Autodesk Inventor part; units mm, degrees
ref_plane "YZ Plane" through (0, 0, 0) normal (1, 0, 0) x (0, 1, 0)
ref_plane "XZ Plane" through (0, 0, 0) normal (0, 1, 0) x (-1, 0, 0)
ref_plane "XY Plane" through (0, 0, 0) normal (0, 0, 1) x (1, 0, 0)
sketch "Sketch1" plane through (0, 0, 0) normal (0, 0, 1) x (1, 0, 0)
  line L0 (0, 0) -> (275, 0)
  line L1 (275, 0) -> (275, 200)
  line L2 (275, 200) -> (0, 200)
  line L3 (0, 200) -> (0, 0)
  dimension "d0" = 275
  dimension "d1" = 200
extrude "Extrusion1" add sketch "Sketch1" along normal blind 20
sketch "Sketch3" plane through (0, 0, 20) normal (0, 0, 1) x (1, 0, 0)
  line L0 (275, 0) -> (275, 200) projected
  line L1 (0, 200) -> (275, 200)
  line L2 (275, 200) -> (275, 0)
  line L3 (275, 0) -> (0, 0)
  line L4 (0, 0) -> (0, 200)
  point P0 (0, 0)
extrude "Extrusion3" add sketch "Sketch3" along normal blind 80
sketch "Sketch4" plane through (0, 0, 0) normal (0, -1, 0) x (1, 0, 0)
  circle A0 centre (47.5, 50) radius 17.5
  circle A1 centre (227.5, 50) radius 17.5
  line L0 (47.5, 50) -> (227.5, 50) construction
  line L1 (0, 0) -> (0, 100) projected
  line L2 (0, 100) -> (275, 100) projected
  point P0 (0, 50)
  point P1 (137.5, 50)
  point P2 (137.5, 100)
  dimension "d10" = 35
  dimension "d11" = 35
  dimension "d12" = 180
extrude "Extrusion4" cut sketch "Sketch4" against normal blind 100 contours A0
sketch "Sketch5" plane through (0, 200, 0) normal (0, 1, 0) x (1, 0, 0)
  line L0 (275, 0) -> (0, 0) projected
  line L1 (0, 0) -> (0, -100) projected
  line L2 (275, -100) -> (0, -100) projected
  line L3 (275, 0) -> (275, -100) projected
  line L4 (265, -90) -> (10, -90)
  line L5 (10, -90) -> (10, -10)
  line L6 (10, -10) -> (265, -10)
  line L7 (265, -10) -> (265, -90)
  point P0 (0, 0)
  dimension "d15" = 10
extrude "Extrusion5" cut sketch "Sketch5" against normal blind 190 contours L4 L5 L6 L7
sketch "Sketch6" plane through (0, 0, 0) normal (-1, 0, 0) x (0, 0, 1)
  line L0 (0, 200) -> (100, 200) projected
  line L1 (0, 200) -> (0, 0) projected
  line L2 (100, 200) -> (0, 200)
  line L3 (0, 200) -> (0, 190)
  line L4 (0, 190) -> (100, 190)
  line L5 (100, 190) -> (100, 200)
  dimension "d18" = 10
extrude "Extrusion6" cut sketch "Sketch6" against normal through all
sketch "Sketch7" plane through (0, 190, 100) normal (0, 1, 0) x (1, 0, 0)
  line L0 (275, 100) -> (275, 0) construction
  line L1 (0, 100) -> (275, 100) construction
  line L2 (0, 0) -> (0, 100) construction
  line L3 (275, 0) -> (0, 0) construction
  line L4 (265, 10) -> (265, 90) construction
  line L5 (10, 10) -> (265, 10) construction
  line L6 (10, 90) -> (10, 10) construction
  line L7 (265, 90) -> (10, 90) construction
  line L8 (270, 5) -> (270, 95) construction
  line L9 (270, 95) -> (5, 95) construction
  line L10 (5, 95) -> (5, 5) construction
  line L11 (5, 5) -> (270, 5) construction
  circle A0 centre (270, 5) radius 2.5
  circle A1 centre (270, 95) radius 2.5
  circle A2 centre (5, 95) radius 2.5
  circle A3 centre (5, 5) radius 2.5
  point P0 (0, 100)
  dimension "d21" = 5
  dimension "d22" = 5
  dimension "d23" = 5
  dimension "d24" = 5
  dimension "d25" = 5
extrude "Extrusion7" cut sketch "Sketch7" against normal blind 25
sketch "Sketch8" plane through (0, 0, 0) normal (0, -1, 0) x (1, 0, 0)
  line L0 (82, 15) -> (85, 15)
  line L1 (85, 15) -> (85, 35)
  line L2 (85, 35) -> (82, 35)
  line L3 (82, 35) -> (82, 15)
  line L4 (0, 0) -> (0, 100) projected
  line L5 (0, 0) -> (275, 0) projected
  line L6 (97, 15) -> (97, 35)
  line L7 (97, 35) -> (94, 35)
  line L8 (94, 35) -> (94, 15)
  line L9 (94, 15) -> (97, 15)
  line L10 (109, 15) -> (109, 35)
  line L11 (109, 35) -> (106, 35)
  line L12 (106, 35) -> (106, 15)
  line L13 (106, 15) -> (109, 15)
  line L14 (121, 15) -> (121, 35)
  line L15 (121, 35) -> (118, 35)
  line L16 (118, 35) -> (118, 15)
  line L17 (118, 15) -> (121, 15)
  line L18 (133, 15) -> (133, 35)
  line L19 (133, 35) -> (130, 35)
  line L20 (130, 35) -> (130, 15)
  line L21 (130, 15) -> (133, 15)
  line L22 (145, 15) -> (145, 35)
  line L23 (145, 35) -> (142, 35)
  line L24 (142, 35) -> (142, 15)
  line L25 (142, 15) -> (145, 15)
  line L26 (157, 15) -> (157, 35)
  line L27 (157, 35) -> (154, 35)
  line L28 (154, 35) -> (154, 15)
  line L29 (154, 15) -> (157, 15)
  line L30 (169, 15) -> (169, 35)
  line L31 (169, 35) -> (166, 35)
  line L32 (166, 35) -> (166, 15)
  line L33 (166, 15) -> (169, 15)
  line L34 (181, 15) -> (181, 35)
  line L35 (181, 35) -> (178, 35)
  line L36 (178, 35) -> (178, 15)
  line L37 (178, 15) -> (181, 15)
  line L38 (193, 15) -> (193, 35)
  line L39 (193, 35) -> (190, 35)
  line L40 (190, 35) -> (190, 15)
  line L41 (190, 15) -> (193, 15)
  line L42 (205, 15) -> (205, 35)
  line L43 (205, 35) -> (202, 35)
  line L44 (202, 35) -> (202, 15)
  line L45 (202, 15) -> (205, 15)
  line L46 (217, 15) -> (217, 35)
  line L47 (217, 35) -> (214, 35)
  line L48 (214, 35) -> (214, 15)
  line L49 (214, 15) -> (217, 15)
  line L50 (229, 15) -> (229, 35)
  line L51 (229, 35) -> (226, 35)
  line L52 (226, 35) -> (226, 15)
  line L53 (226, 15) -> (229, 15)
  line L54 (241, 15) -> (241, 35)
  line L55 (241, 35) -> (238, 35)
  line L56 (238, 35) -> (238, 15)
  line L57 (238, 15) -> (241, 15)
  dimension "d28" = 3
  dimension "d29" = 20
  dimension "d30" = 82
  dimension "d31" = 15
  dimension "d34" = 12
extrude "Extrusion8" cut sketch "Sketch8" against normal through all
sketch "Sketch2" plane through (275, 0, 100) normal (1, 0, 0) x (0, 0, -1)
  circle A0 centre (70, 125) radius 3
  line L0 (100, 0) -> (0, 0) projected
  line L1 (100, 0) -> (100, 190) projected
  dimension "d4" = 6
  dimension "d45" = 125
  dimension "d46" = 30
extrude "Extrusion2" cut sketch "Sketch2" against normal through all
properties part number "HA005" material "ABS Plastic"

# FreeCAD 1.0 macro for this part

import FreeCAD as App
import Part
import Sketcher

V = App.Vector
Q = App.Units.Quantity


def add_polygon(sketch, points):
    """Adds a closed chain of lines whose ends are joined by coincident constraints."""
    first, n = sketch.GeometryCount, len(points)
    for a, b in zip(points, points[1:] + points[:1]):
        sketch.addGeometry(Part.LineSegment(App.Vector(*a, 0), App.Vector(*b, 0)), False)
    for i in range(n):
        sketch.addConstraint(Sketcher.Constraint("Coincident", first + i, 2, first + (i + 1) % n, 1))

doc = App.newDocument("Part")
body = doc.addObject("PartDesign::Body", "Body")

# Sketch on XY plane
sketch1 = body.newObject("Sketcher::SketchObject", "Sketch")
sketch1.AttachmentSupport = (doc.getObject("XY_Plane"), [""])
sketch1.MapMode = "FlatFace"
add_polygon(sketch1, [(0, 200), (0, 0), (275, 0), (275, 200)])  # lines 0-3
sketch1.addConstraint([
    Sketcher.Constraint("Vertical", 0),
    Sketcher.Constraint("Horizontal", 1),
    Sketcher.Constraint("Vertical", 2),
    Sketcher.Constraint("Horizontal", 3),
    Sketcher.Constraint("Coincident", 0, 2, -1, 1),
    Sketcher.Constraint("DistanceX", 1, 1, 1, 2, Q("275 mm")),
    Sketcher.Constraint("DistanceY", 0, 2, 0, 1, Q("200 mm")),
])
pad1 = body.newObject("PartDesign::Pad", "Pad")
pad1.Profile = sketch1
pad1.Length = 20

# Sketch on XY plane
sketch2 = body.newObject("Sketcher::SketchObject", "Sketch001")
sketch2.AttachmentSupport = (doc.getObject("XY_Plane"), [""])
sketch2.MapMode = "FlatFace"
sketch2.AttachmentOffset = App.Placement(V(0, 0, 20), App.Rotation())
add_polygon(sketch2, [(0, 0), (275, 0), (275, 200), (0, 200)])  # lines 0-3
sketch2.addConstraint([
    Sketcher.Constraint("Horizontal", 0),
    Sketcher.Constraint("Vertical", 1),
    Sketcher.Constraint("Horizontal", 2),
    Sketcher.Constraint("Vertical", 3),
    Sketcher.Constraint("Coincident", 3, 2, -1, 1),
    Sketcher.Constraint("DistanceX", 0, 1, 0, 2, Q("275 mm")),
    Sketcher.Constraint("DistanceY", 1, 1, 1, 2, Q("200 mm")),
])
pad2 = body.newObject("PartDesign::Pad", "Pad001")
pad2.Profile = sketch2
pad2.Length = 80

# Sketch on XZ plane
sketch3 = body.newObject("Sketcher::SketchObject", "Sketch002")
sketch3.AttachmentSupport = (doc.getObject("XZ_Plane"), [""])
sketch3.MapMode = "FlatFace"
sketch3.addGeometry(Part.Circle(V(48, 50, 0), V(0, 0, 1), 18), False)
sketch3.addConstraint([
    Sketcher.Constraint("Diameter", 0, Q("35 mm")),
    Sketcher.Constraint("DistanceY", -1, 1, 0, 3, Q("50 mm")),
    Sketcher.Constraint("DistanceX", -1, 1, 0, 3, Q("47.5 mm")),
])
pocket1 = body.newObject("PartDesign::Pocket", "Pocket")
pocket1.Profile = sketch3
pocket1.Length = 100

# Sketch on XZ plane
sketch4 = body.newObject("Sketcher::SketchObject", "Sketch003")
sketch4.AttachmentSupport = (doc.getObject("XZ_Plane"), [""])
sketch4.MapMode = "FlatFace"
sketch4.AttachmentOffset = App.Placement(V(0, 0, -200), App.Rotation())
add_polygon(sketch4, [(10, 90), (265, 90), (265, 10), (10, 10)])  # lines 0-3
sketch4.addConstraint([
    Sketcher.Constraint("Horizontal", 0),
    Sketcher.Constraint("Vertical", 1),
    Sketcher.Constraint("Horizontal", 2),
    Sketcher.Constraint("Vertical", 3),
    Sketcher.Constraint("DistanceY", -1, 1, 1, 2, Q("10 mm")),
    Sketcher.Constraint("DistanceX", -1, 1, 2, 2, Q("10 mm")),
    Sketcher.Constraint("DistanceX", 0, 1, 0, 2, Q("255 mm")),
    Sketcher.Constraint("DistanceY", 1, 2, 1, 1, Q("80 mm")),
])
pocket2 = body.newObject("PartDesign::Pocket", "Pocket001")
pocket2.Profile = sketch4
pocket2.Length = 190
pocket2.Reversed = True

# Sketch on YZ plane
sketch5 = body.newObject("Sketcher::SketchObject", "Sketch004")
sketch5.AttachmentSupport = (doc.getObject("YZ_Plane"), [""])
sketch5.MapMode = "FlatFace"
add_polygon(sketch5, [(200, 100), (200, 0), (190, 0), (190, 100)])  # lines 0-3
sketch5.addConstraint([
    Sketcher.Constraint("Vertical", 0),
    Sketcher.Constraint("Horizontal", 1),
    Sketcher.Constraint("Vertical", 2),
    Sketcher.Constraint("Horizontal", 3),
    Sketcher.Constraint("PointOnObject", 0, 2, -1),
    Sketcher.Constraint("DistanceX", 1, 2, 1, 1, Q("10 mm")),
    Sketcher.Constraint("DistanceY", 0, 2, 0, 1, Q("100 mm")),
    Sketcher.Constraint("DistanceX", -1, 1, 0, 2, Q("200 mm")),
])
pocket3 = body.newObject("PartDesign::Pocket", "Pocket002")
pocket3.Profile = sketch5
pocket3.Type = "ThroughAll"
pocket3.Reversed = True

# Sketch on XZ plane
sketch6 = body.newObject("Sketcher::SketchObject", "Sketch005")
sketch6.AttachmentSupport = (doc.getObject("XZ_Plane"), [""])
sketch6.MapMode = "FlatFace"
sketch6.AttachmentOffset = App.Placement(V(0, 0, -190), App.Rotation())
sketch6.addGeometry([
    Part.Circle(V(270, 95, 0), V(0, 0, 1), 2.5),
    Part.Circle(V(270, 5, 0), V(0, 0, 1), 2.5),
    Part.Circle(V(5, 5, 0), V(0, 0, 1), 2.5),
    Part.Circle(V(5, 95, 0), V(0, 0, 1), 2.5),
], False)
sketch6.addConstraint([
    Sketcher.Constraint("Equal", 0, 1),
    Sketcher.Constraint("Equal", 1, 2),
    Sketcher.Constraint("Equal", 2, 3),
    Sketcher.Constraint("Horizontal", 1, 3, 2, 3),
    Sketcher.Constraint("Horizontal", 0, 3, 3, 3),
    Sketcher.Constraint("Vertical", 0, 3, 1, 3),
    Sketcher.Constraint("Vertical", 2, 3, 3, 3),
    Sketcher.Constraint("Diameter", 0, Q("5 mm")),
    Sketcher.Constraint("DistanceY", -1, 1, 1, 3, Q("5 mm")),
    Sketcher.Constraint("DistanceX", -1, 1, 2, 3, Q("5 mm")),
    Sketcher.Constraint("DistanceX", -1, 1, 0, 3, Q("270 mm")),
    Sketcher.Constraint("DistanceY", -1, 1, 0, 3, Q("95 mm")),
])
pocket4 = body.newObject("PartDesign::Pocket", "Pocket003")
pocket4.Profile = sketch6
pocket4.Length = 25
pocket4.Reversed = True

# Sketch on XZ plane
sketch7 = body.newObject("Sketcher::SketchObject", "Sketch006")
sketch7.AttachmentSupport = (doc.getObject("XZ_Plane"), [""])
sketch7.MapMode = "FlatFace"
add_polygon(sketch7, [(82, 35), (82, 15), (85, 15), (85, 35)])  # lines 0-3
add_polygon(sketch7, [(94, 15), (97, 15), (97, 35), (94, 35)])  # lines 4-7
add_polygon(sketch7, [(106, 15), (109, 15), (109, 35), (106, 35)])  # lines 8-11
add_polygon(sketch7, [(118, 15), (121, 15), (121, 35), (118, 35)])  # lines 12-15
add_polygon(sketch7, [(130, 15), (133, 15), (133, 35), (130, 35)])  # lines 16-19
add_polygon(sketch7, [(142, 15), (145, 15), (145, 35), (142, 35)])  # lines 20-23
add_polygon(sketch7, [(154, 15), (157, 15), (157, 35), (154, 35)])  # lines 24-27
add_polygon(sketch7, [(166, 15), (169, 15), (169, 35), (166, 35)])  # lines 28-31
add_polygon(sketch7, [(178, 15), (181, 15), (181, 35), (178, 35)])  # lines 32-35
add_polygon(sketch7, [(190, 15), (193, 15), (193, 35), (190, 35)])  # lines 36-39
add_polygon(sketch7, [(202, 15), (205, 15), (205, 35), (202, 35)])  # lines 40-43
add_polygon(sketch7, [(214, 15), (217, 15), (217, 35), (214, 35)])  # lines 44-47
add_polygon(sketch7, [(226, 15), (229, 15), (229, 35), (226, 35)])  # lines 48-51
add_polygon(sketch7, [(238, 15), (241, 15), (241, 35), (238, 35)])  # lines 52-55
sketch7.addConstraint([
    Sketcher.Constraint("Vertical", 0),
    Sketcher.Constraint("Horizontal", 1),
    Sketcher.Constraint("Vertical", 2),
    Sketcher.Constraint("Horizontal", 3),
    Sketcher.Constraint("Horizontal", 4),
    Sketcher.Constraint("Vertical", 5),
    Sketcher.Constraint("Horizontal", 6),
    Sketcher.Constraint("Vertical", 7),
    Sketcher.Constraint("Horizontal", 8),
    Sketcher.Constraint("Vertical", 9),
    Sketcher.Constraint("Horizontal", 10),
    Sketcher.Constraint("Vertical", 11),
    Sketcher.Constraint("Horizontal", 12),
    Sketcher.Constraint("Vertical", 13),
    Sketcher.Constraint("Horizontal", 14),
    Sketcher.Constraint("Vertical", 15),
    Sketcher.Constraint("Horizontal", 16),
    Sketcher.Constraint("Vertical", 17),
    Sketcher.Constraint("Horizontal", 18),
    Sketcher.Constraint("Vertical", 19),
    Sketcher.Constraint("Horizontal", 20),
    Sketcher.Constraint("Vertical", 21),
    Sketcher.Constraint("Horizontal", 22),
    Sketcher.Constraint("Vertical", 23),
    Sketcher.Constraint("Horizontal", 24),
    Sketcher.Constraint("Vertical", 25),
    Sketcher.Constraint("Horizontal", 26),
    Sketcher.Constraint("Vertical", 27),
    Sketcher.Constraint("Horizontal", 28),
    Sketcher.Constraint("Vertical", 29),
    Sketcher.Constraint("Horizontal", 30),
    Sketcher.Constraint("Vertical", 31),
    Sketcher.Constraint("Horizontal", 32),
    Sketcher.Constraint("Vertical", 33),
    Sketcher.Constraint("Horizontal", 34),
    Sketcher.Constraint("Vertical", 35),
    Sketcher.Constraint("Horizontal", 36),
    Sketcher.Constraint("Vertical", 37),
    Sketcher.Constraint("Horizontal", 38),
    Sketcher.Constraint("Vertical", 39),
    Sketcher.Constraint("Horizontal", 40),
    Sketcher.Constraint("Vertical", 41),
    Sketcher.Constraint("Horizontal", 42),
    Sketcher.Constraint("Vertical", 43),
    Sketcher.Constraint("Horizontal", 44),
    Sketcher.Constraint("Vertical", 45),
    Sketcher.Constraint("Horizontal", 46),
    Sketcher.Constraint("Vertical", 47),
    Sketcher.Constraint("Horizontal", 48),
    Sketcher.Constraint("Vertical", 49),
    Sketcher.Constraint("Horizontal", 50),
    Sketcher.Constraint("Vertical", 51),
    Sketcher.Constraint("Horizontal", 52),
    Sketcher.Constraint("Vertical", 53),
    Sketcher.Constraint("Horizontal", 54),
    Sketcher.Constraint("Vertical", 55),
    Sketcher.Constraint("Horizontal", 1, 2, 4, 2),
    Sketcher.Constraint("Horizontal", 3, 2, 5, 2),
    Sketcher.Constraint("Horizontal", 7, 2, 8, 2),
    Sketcher.Constraint("Horizontal", 6, 2, 9, 2),
    Sketcher.Constraint("Horizontal", 11, 2, 12, 2),
    Sketcher.Constraint("Horizontal", 10, 2, 13, 2),
    Sketcher.Constraint("Horizontal", 15, 2, 16, 2),
    Sketcher.Constraint("Horizontal", 14, 2, 17, 2),
    Sketcher.Constraint("Horizontal", 19, 2, 20, 2),
    Sketcher.Constraint("Horizontal", 18, 2, 21, 2),
    Sketcher.Constraint("Horizontal", 23, 2, 24, 2),
    Sketcher.Constraint("Horizontal", 22, 2, 25, 2),
    Sketcher.Constraint("Horizontal", 27, 2, 28, 2),
    Sketcher.Constraint("Horizontal", 26, 2, 29, 2),
    Sketcher.Constraint("Horizontal", 31, 2, 32, 2),
    Sketcher.Constraint("Horizontal", 30, 2, 33, 2),
    Sketcher.Constraint("Horizontal", 35, 2, 36, 2),
    Sketcher.Constraint("Horizontal", 34, 2, 37, 2),
    Sketcher.Constraint("Horizontal", 39, 2, 40, 2),
    Sketcher.Constraint("Horizontal", 38, 2, 41, 2),
    Sketcher.Constraint("Horizontal", 43, 2, 44, 2),
    Sketcher.Constraint("Horizontal", 42, 2, 45, 2),
    Sketcher.Constraint("Horizontal", 47, 2, 48, 2),
    Sketcher.Constraint("Horizontal", 46, 2, 49, 2),
    Sketcher.Constraint("Horizontal", 51, 2, 52, 2),
    Sketcher.Constraint("Horizontal", 50, 2, 53, 2),
    Sketcher.Constraint("Equal", 3, 4),
    Sketcher.Constraint("Equal", 6, 8),
    Sketcher.Constraint("Equal", 10, 12),
    Sketcher.Constraint("Equal", 14, 16),
    Sketcher.Constraint("Equal", 18, 20),
    Sketcher.Constraint("Equal", 22, 24),
    Sketcher.Constraint("Equal", 26, 28),
    Sketcher.Constraint("Equal", 30, 32),
    Sketcher.Constraint("Equal", 34, 36),
    Sketcher.Constraint("Equal", 38, 40),
    Sketcher.Constraint("Equal", 42, 44),
    Sketcher.Constraint("Equal", 46, 48),
    Sketcher.Constraint("Equal", 50, 52),
    Sketcher.Constraint("DistanceX", 1, 1, 1, 2, Q("3 mm")),
    Sketcher.Constraint("DistanceY", 0, 2, 0, 1, Q("20 mm")),
    Sketcher.Constraint("DistanceX", -1, 1, 0, 2, Q("82 mm")),
    Sketcher.Constraint("DistanceY", -1, 1, 0, 2, Q("15 mm")),
    Sketcher.Constraint("DistanceX", 1, 2, 4, 2, Q("12 mm")),
    Sketcher.Constraint("DistanceX", 4, 2, 8, 2, Q("12 mm")),
    Sketcher.Constraint("DistanceX", 8, 2, 12, 2, Q("12 mm")),
    Sketcher.Constraint("DistanceX", 12, 2, 16, 2, Q("12 mm")),
    Sketcher.Constraint("DistanceX", 16, 2, 20, 2, Q("12 mm")),
    Sketcher.Constraint("DistanceX", 20, 2, 24, 2, Q("12 mm")),
    Sketcher.Constraint("DistanceX", 24, 2, 28, 2, Q("12 mm")),
    Sketcher.Constraint("DistanceX", 28, 2, 32, 2, Q("12 mm")),
    Sketcher.Constraint("DistanceX", 32, 2, 36, 2, Q("12 mm")),
    Sketcher.Constraint("DistanceX", 36, 2, 40, 2, Q("12 mm")),
    Sketcher.Constraint("DistanceX", 40, 2, 44, 2, Q("12 mm")),
    Sketcher.Constraint("DistanceX", 44, 2, 48, 2, Q("12 mm")),
    Sketcher.Constraint("DistanceX", 48, 2, 52, 2, Q("12 mm")),
])
pocket5 = body.newObject("PartDesign::Pocket", "Pocket004")
pocket5.Profile = sketch7
pocket5.Type = "ThroughAll"

# Sketch on YZ plane
sketch8 = body.newObject("Sketcher::SketchObject", "Sketch007")
sketch8.AttachmentSupport = (doc.getObject("YZ_Plane"), [""])
sketch8.MapMode = "FlatFace"
sketch8.AttachmentOffset = App.Placement(V(0, 0, 275), App.Rotation())
sketch8.addGeometry(Part.Circle(V(125, 30, 0), V(0, 0, 1), 3), False)
sketch8.addConstraint([
    Sketcher.Constraint("Diameter", 0, Q("6 mm")),
    Sketcher.Constraint("DistanceX", -1, 1, 0, 3, Q("125 mm")),
    Sketcher.Constraint("DistanceY", -1, 1, 0, 3, Q("30 mm")),
])
pocket6 = body.newObject("PartDesign::Pocket", "Pocket005")
pocket6.Profile = sketch8
pocket6.Type = "ThroughAll"

doc.recompute()
